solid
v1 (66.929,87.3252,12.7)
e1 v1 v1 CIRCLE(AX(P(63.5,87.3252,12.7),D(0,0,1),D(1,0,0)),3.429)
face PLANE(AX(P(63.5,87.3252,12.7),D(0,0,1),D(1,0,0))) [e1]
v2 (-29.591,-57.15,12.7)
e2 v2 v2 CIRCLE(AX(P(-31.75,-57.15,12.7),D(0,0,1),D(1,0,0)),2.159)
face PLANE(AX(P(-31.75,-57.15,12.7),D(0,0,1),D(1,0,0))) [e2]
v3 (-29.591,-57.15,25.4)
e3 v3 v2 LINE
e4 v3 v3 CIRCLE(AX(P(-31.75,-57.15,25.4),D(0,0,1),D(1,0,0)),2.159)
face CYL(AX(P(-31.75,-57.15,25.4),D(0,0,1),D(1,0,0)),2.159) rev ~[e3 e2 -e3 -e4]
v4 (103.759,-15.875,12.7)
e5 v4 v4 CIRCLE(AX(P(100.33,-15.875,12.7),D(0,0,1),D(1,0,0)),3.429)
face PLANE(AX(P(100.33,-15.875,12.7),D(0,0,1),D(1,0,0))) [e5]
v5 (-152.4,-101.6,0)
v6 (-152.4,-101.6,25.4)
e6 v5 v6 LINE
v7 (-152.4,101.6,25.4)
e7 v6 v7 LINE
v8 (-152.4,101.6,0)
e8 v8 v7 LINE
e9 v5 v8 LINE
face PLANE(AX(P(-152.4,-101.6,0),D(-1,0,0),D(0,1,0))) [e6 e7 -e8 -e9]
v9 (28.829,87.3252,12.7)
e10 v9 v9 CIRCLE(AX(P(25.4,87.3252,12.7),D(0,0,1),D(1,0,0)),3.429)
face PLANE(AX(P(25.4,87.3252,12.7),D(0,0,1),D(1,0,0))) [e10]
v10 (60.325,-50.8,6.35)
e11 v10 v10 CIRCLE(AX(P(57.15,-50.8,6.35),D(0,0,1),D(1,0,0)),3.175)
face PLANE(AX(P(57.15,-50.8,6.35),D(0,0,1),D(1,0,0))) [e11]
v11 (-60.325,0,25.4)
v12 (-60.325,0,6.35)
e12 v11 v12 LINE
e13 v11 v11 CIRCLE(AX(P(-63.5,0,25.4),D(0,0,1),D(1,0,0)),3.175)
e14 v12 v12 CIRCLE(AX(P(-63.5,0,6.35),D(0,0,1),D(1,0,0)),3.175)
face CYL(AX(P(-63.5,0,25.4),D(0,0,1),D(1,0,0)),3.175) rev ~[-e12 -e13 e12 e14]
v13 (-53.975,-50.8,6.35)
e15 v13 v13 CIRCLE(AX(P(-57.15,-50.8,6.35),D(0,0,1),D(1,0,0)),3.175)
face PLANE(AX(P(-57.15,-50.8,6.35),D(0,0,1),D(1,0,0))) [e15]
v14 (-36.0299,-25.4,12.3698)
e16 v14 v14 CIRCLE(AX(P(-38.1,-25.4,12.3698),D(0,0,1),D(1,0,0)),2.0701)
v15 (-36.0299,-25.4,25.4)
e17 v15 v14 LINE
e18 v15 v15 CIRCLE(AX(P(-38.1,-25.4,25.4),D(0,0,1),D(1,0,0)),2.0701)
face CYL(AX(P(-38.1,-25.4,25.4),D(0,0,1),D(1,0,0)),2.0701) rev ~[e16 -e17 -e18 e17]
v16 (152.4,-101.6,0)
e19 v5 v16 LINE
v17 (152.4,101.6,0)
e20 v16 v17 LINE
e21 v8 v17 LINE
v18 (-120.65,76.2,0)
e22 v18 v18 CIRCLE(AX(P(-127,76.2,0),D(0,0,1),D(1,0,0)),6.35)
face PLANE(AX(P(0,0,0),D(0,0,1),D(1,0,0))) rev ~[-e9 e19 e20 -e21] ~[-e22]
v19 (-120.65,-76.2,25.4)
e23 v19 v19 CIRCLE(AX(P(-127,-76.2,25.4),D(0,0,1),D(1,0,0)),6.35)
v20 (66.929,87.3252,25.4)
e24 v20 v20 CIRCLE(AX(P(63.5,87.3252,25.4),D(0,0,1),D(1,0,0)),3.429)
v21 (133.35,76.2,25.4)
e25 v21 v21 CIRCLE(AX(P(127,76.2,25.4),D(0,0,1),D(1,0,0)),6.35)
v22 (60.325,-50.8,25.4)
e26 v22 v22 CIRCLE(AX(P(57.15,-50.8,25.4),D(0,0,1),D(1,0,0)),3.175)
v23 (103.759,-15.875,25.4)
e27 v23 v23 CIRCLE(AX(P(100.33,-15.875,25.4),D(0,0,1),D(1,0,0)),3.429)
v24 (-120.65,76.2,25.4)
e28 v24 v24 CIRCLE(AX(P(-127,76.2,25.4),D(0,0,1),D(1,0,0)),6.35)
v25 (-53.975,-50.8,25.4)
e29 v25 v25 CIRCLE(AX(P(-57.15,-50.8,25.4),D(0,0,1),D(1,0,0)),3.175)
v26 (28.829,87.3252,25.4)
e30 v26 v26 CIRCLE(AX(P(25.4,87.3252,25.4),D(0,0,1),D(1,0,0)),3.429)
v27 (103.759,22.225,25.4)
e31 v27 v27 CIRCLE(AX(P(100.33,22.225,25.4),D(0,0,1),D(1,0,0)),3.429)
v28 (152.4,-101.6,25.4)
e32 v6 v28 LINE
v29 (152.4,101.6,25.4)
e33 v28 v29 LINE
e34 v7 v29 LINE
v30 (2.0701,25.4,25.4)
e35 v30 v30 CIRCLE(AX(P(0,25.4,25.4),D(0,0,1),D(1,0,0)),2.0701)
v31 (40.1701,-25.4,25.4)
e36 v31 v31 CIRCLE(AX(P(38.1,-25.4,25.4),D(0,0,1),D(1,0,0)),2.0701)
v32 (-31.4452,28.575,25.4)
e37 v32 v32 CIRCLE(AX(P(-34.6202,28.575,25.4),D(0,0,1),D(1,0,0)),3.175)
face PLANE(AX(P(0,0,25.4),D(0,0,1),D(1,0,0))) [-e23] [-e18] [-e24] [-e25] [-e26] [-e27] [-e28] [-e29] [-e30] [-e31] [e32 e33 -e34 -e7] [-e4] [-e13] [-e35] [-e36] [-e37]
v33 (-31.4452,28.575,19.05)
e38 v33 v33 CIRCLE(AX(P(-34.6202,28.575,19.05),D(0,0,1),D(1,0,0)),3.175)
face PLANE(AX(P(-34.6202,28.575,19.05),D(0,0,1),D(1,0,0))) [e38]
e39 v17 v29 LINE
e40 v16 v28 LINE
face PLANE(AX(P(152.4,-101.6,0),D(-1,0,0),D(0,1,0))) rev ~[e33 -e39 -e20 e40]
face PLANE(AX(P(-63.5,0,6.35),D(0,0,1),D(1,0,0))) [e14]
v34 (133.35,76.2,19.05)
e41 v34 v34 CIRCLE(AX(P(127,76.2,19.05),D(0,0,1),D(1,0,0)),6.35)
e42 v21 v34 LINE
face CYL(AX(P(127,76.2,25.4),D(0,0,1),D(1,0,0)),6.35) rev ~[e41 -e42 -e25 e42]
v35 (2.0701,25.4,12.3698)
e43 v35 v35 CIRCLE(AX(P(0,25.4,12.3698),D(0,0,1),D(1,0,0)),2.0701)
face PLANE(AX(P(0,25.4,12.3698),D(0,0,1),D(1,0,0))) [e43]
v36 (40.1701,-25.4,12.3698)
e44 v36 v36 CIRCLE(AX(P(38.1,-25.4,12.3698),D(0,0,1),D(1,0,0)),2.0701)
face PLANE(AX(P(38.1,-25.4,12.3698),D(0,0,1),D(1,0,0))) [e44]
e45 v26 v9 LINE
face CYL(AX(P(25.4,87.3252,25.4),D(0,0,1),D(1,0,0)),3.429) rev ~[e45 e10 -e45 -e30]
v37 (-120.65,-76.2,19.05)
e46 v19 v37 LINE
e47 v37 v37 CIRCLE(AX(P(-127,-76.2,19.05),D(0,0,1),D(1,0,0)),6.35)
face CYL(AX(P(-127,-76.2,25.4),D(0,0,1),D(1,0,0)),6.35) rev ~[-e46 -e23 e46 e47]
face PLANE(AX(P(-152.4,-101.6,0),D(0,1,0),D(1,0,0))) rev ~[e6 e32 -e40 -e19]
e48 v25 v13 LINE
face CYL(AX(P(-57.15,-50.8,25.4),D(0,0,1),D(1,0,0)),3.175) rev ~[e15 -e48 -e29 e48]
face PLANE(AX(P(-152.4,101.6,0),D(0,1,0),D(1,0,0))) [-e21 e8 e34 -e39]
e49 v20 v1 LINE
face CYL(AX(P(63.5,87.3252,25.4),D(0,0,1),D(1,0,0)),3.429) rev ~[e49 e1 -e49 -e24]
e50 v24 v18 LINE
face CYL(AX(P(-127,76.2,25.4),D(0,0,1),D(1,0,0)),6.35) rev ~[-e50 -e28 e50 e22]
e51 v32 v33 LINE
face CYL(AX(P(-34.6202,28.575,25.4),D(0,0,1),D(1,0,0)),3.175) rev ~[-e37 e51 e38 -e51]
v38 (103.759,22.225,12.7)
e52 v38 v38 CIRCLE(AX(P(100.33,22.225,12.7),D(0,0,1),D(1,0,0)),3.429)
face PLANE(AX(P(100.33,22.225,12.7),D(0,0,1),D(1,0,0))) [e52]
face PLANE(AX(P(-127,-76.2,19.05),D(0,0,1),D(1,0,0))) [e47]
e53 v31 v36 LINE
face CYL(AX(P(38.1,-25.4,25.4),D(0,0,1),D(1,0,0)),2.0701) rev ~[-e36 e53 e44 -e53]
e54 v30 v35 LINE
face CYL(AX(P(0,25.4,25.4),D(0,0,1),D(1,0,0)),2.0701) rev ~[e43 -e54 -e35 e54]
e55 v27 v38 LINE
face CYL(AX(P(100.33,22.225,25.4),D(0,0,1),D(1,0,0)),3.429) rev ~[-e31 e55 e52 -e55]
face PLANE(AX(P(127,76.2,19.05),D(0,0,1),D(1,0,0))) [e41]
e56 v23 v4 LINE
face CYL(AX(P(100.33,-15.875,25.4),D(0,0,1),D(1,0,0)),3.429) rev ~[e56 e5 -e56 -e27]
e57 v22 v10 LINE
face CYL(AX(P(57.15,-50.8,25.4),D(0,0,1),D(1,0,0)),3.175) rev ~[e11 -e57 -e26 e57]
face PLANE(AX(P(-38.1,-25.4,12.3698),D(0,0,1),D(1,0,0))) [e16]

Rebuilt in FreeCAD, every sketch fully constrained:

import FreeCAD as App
import Part
import Sketcher

V = App.Vector
Q = App.Units.Quantity

doc = App.newDocument("Part")
body = doc.addObject("PartDesign::Body", "Body")

# Sketch on XY plane
sketch1 = body.newObject("Sketcher::SketchObject", "Sketch")
sketch1.AttachmentSupport = (doc.getObject("XY_Plane"), [""])
sketch1.MapMode = "FlatFace"
sketch1.addGeometry([
    Part.LineSegment(V(-152.4, 101.6, 0), V(-152.4, -101.6, 0)),
    Part.LineSegment(V(-152.4, -101.6, 0), V(152.4, -101.6, 0)),
    Part.LineSegment(V(152.4, -101.6, 0), V(152.4, 101.6, 0)),
    Part.LineSegment(V(152.4, 101.6, 0), V(-152.4, 101.6, 0)),
], False)
sketch1.addConstraint([
    Sketcher.Constraint("Coincident", 0, 2, 1, 1),
    Sketcher.Constraint("Coincident", 1, 2, 2, 1),
    Sketcher.Constraint("Coincident", 2, 2, 3, 1),
    Sketcher.Constraint("Coincident", 3, 2, 0, 1),
    Sketcher.Constraint("Vertical", 0),
    Sketcher.Constraint("Horizontal", 1),
    Sketcher.Constraint("Vertical", 2),
    Sketcher.Constraint("Horizontal", 3),
    Sketcher.Constraint("Symmetric", 0, 2, 2, 2, -1, 1),
    Sketcher.Constraint("DistanceX", 1, 1, 1, 2, Q("12 in")),
    Sketcher.Constraint("DistanceY", 0, 2, 0, 1, Q("8 in")),
])
pad1 = body.newObject("PartDesign::Pad", "Pad")
pad1.Profile = sketch1
pad1.Length = Q("1 in")

# Sketch on XY plane
sketch2 = body.newObject("Sketcher::SketchObject", "Sketch001")
sketch2.AttachmentSupport = (doc.getObject("XY_Plane"), [""])
sketch2.MapMode = "FlatFace"
sketch2.AttachmentOffset = App.Placement(V(0, 0, 1 * 25.4), App.Rotation())
sketch2.addGeometry([
    Part.Circle(V(-127, -76.2, 0), V(0, 0, 1), 6.35),
    Part.Circle(V(127, 76.2, 0), V(0, 0, 1), 6.35),
], False)
sketch2.addConstraint([
    Sketcher.Constraint("Equal", 0, 1),
    Sketcher.Constraint("Symmetric", 0, 3, 1, 3, -1, 1),
    Sketcher.Constraint("Diameter", 0, Q("0.5 in")),
    Sketcher.Constraint("DistanceX", 0, 3, -1, 1, Q("5 in")),
    Sketcher.Constraint("DistanceY", 0, 3, -1, 1, Q("3 in")),
])
pocket1 = body.newObject("PartDesign::Pocket", "Pocket")
pocket1.Profile = sketch2
pocket1.Length = Q("0.25 in")

# Sketch on XY plane
sketch3 = body.newObject("Sketcher::SketchObject", "Sketch002")
sketch3.AttachmentSupport = (doc.getObject("XY_Plane"), [""])
sketch3.MapMode = "FlatFace"
sketch3.AttachmentOffset = App.Placement(V(0, 0, 1 * 25.4), App.Rotation())
sketch3.addGeometry([
    Part.Circle(V(-57.15, -50.8, 0), V(0, 0, 1), 3.175),
    Part.Circle(V(57.15, -50.8, 0), V(0, 0, 1), 3.175),
    Part.Circle(V(-63.5, 0, 0), V(0, 0, 1), 3.175),
], False)
sketch3.addConstraint([
    Sketcher.Constraint("Equal", 0, 1),
    Sketcher.Constraint("Equal", 1, 2),
    Sketcher.Constraint("Symmetric", 0, 3, 1, 3, -2),
    Sketcher.Constraint("PointOnObject", 2, 3, -1),
    Sketcher.Constraint("Diameter", 0, Q("0.25 in")),
    Sketcher.Constraint("DistanceY", 0, 3, -1, 1, Q("2 in")),
    Sketcher.Constraint("DistanceX", 2, 3, -1, 1, Q("2.5 in")),
    Sketcher.Constraint("DistanceX", 0, 3, 1, 3, Q("4.5 in")),
])
pocket2 = body.newObject("PartDesign::Pocket", "Pocket001")
pocket2.Profile = sketch3
pocket2.Length = Q("0.75 in")

# Sketch on XY plane
sketch4 = body.newObject("Sketcher::SketchObject", "Sketch003")
sketch4.AttachmentSupport = (doc.getObject("XY_Plane"), [""])
sketch4.MapMode = "FlatFace"
sketch4.AttachmentOffset = App.Placement(V(0, 0, 1 * 25.4), App.Rotation())
sketch4.addGeometry([
    Part.Circle(V(0, 25.4, 0), V(0, 0, 1), 2.0701),
    Part.Circle(V(-38.1, -25.4, 0), V(0, 0, 1), 2.0701),
    Part.Circle(V(38.1, -25.4, 0), V(0, 0, 1), 2.0701),
], False)
sketch4.addConstraint([
    Sketcher.Constraint("Equal", 0, 1),
    Sketcher.Constraint("Equal", 1, 2),
    Sketcher.Constraint("Symmetric", 1, 3, 2, 3, -2),
    Sketcher.Constraint("PointOnObject", 0, 3, -2),
    Sketcher.Constraint("Diameter", 0, Q("0.163 in")),
    Sketcher.Constraint("DistanceY", -1, 1, 0, 3, Q("1 in")),
    Sketcher.Constraint("DistanceY", 1, 3, -1, 1, Q("1 in")),
    Sketcher.Constraint("DistanceX", 1, 3, 2, 3, Q("3 in")),
])
pocket3 = body.newObject("PartDesign::Pocket", "Pocket002")
pocket3.Profile = sketch4
pocket3.Length = Q("0.513 in")

# Sketch on XY plane
sketch5 = body.newObject("Sketcher::SketchObject", "Sketch004")
sketch5.AttachmentSupport = (doc.getObject("XY_Plane"), [""])
sketch5.MapMode = "FlatFace"
sketch5.AttachmentOffset = App.Placement(V(0, 0, 1 * 25.4), App.Rotation())
sketch5.addGeometry([
    Part.Circle(V(25.4, 87.3252, 0), V(0, 0, 1), 3.429),
    Part.Circle(V(63.5, 87.3252, 0), V(0, 0, 1), 3.429),
], False)
sketch5.addConstraint([
    Sketcher.Constraint("Equal", 0, 1),
    Sketcher.Constraint("Horizontal", 0, 3, 1, 3),
    Sketcher.Constraint("Diameter", 0, Q("0.27 in")),
    Sketcher.Constraint("DistanceX", -1, 1, 0, 3, Q("1 in")),
    Sketcher.Constraint("DistanceX", -1, 1, 1, 3, Q("2.5 in")),
    Sketcher.Constraint("DistanceY", -1, 1, 0, 3, Q("3.438 in")),
])
pocket4 = body.newObject("PartDesign::Pocket", "Pocket003")
pocket4.Profile = sketch5
pocket4.Length = Q("0.5 in")

# Sketch on XY plane
sketch6 = body.newObject("Sketcher::SketchObject", "Sketch005")
sketch6.AttachmentSupport = (doc.getObject("XY_Plane"), [""])
sketch6.MapMode = "FlatFace"
sketch6.AttachmentOffset = App.Placement(V(0, 0, 1 * 25.4), App.Rotation())
sketch6.addGeometry(Part.Circle(V(-34.6202, 28.575, 0), V(0, 0, 1), 3.175), False)
sketch6.addConstraint([
    Sketcher.Constraint("Diameter", 0, Q("0.25 in")),
    Sketcher.Constraint("DistanceX", 0, 3, -1, 1, Q("1.363 in")),
    Sketcher.Constraint("DistanceY", -1, 1, 0, 3, Q("1.125 in")),
])
pocket5 = body.newObject("PartDesign::Pocket", "Pocket004")
pocket5.Profile = sketch6
pocket5.Length = Q("0.25 in")

# Sketch on XY plane
sketch7 = body.newObject("Sketcher::SketchObject", "Sketch006")
sketch7.AttachmentSupport = (doc.getObject("XY_Plane"), [""])
sketch7.MapMode = "FlatFace"
sketch7.AttachmentOffset = App.Placement(V(0, 0, 1 * 25.4), App.Rotation())
sketch7.addGeometry([
    Part.Circle(V(100.33, 22.225, 0), V(0, 0, 1), 3.429),
    Part.Circle(V(100.33, -15.875, 0), V(0, 0, 1), 3.429),
], False)
sketch7.addConstraint([
    Sketcher.Constraint("Equal", 0, 1),
    Sketcher.Constraint("Vertical", 0, 3, 1, 3),
    Sketcher.Constraint("Diameter", 0, Q("0.27 in")),
    Sketcher.Constraint("DistanceY", 1, 3, 0, 3, Q("1.5 in")),
    Sketcher.Constraint("DistanceX", -1, 1, 0, 3, Q("3.95 in")),
    Sketcher.Constraint("DistanceY", -1, 1, 0, 3, Q("0.875 in")),
])
pocket6 = body.newObject("PartDesign::Pocket", "Pocket005")
pocket6.Profile = sketch7
pocket6.Length = Q("0.5 in")

# Sketch on XY plane
sketch8 = body.newObject("Sketcher::SketchObject", "Sketch007")
sketch8.AttachmentSupport = (doc.getObject("XY_Plane"), [""])
sketch8.MapMode = "FlatFace"
sketch8.AttachmentOffset = App.Placement(V(0, 0, 1 * 25.4), App.Rotation())
sketch8.addGeometry(Part.Circle(V(-31.75, -57.15, 0), V(0, 0, 1), 2.159), False)
sketch8.addConstraint([
    Sketcher.Constraint("Diameter", 0, Q("0.17 in")),
    Sketcher.Constraint("DistanceX", 0, 3, -1, 1, Q("1.25 in")),
    Sketcher.Constraint("DistanceY", 0, 3, -1, 1, Q("2.25 in")),
])
pocket7 = body.newObject("PartDesign::Pocket", "Pocket006")
pocket7.Profile = sketch8
pocket7.Length = Q("0.5 in")

# Sketch on XY plane
sketch9 = body.newObject("Sketcher::SketchObject", "Sketch008")
sketch9.AttachmentSupport = (doc.getObject("XY_Plane"), [""])
sketch9.MapMode = "FlatFace"
sketch9.AttachmentOffset = App.Placement(V(0, 0, 1 * 25.4), App.Rotation())
sketch9.addGeometry(Part.Circle(V(-127, 76.2, 0), V(0, 0, 1), 6.35), False)
sketch9.addConstraint([
    Sketcher.Constraint("Diameter", 0, Q("0.5 in")),
    Sketcher.Constraint("DistanceX", 0, 3, -1, 1, Q("5 in")),
    Sketcher.Constraint("DistanceY", -1, 1, 0, 3, Q("3 in")),
])
pocket8 = body.newObject("PartDesign::Pocket", "Pocket007")
pocket8.Profile = sketch9
pocket8.Length = Q("1 in")

doc.recompute()
